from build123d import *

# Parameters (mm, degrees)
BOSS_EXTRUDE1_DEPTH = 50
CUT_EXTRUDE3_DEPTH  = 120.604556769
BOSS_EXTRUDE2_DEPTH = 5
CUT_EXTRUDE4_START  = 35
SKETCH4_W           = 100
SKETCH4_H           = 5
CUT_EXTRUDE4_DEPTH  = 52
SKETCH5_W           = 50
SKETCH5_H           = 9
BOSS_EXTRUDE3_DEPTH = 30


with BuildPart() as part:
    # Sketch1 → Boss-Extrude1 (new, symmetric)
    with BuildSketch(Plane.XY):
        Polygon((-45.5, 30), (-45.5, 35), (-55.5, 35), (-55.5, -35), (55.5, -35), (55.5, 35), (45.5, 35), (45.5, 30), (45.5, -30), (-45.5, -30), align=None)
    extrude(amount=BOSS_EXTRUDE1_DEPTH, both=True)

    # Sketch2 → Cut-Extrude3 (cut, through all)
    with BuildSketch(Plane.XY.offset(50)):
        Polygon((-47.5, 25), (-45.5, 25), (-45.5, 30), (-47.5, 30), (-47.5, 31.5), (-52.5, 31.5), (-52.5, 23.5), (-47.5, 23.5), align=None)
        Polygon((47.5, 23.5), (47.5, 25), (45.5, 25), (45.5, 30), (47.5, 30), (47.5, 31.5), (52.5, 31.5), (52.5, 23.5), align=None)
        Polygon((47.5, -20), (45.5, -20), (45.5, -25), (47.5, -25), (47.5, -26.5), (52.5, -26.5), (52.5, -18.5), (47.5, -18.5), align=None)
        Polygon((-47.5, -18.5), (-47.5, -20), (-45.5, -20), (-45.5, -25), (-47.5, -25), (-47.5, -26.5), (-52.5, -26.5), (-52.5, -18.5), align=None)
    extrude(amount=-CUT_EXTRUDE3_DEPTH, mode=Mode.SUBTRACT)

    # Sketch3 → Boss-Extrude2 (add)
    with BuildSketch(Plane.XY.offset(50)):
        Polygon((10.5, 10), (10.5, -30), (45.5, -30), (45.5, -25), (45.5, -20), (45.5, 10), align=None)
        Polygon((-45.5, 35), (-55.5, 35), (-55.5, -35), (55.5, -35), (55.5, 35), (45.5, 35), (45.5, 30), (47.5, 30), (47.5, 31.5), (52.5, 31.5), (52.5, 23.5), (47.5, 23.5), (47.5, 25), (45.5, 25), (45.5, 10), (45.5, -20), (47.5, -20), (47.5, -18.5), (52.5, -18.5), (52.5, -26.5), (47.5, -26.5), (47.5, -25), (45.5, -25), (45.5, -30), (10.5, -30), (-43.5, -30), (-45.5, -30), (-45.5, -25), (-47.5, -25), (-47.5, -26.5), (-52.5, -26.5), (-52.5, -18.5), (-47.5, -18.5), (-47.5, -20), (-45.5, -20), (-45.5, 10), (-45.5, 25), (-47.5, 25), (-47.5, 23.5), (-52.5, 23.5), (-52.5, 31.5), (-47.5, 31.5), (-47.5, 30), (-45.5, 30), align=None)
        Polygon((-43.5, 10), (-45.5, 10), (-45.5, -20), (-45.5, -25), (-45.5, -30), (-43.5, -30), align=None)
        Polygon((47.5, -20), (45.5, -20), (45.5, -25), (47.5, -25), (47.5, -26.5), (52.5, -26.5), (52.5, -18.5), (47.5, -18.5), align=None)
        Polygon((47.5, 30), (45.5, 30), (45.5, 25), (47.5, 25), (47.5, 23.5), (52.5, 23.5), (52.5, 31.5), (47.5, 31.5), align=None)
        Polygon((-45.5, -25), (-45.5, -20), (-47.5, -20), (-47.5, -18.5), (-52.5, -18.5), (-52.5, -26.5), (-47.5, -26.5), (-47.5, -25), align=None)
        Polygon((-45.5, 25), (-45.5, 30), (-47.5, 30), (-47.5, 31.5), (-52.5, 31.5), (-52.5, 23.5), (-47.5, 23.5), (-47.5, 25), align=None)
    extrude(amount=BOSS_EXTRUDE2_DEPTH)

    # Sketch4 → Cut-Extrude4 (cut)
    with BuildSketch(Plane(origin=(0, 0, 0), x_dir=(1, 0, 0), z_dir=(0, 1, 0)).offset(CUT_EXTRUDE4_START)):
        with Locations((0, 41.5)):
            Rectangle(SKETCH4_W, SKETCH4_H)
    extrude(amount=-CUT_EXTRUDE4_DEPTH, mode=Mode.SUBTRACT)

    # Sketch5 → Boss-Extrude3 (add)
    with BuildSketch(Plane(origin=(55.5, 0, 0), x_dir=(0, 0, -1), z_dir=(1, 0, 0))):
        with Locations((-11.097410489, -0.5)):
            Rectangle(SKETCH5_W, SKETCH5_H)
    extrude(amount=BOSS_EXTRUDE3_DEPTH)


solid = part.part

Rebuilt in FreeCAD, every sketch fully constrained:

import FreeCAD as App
import Part
import Sketcher

V = App.Vector
Q = App.Units.Quantity

doc = App.newDocument("Part")
body = doc.addObject("PartDesign::Body", "Body")

sketch1 = body.newObject("Sketcher::SketchObject", "Sketch")
sketch1.AttachmentSupport = (doc.getObject("XY_Plane"), [""])
sketch1.MapMode = "FlatFace"
sketch1.addGeometry([
    Part.LineSegment(V(-46, 35, 0), V(-56, 35, 0)),
    Part.LineSegment(V(-56, 35, 0), V(-56, -35, 0)),
    Part.LineSegment(V(-56, -35, 0), V(56, -35, 0)),
    Part.LineSegment(V(56, -35, 0), V(56, 35, 0)),
    Part.LineSegment(V(56, 35, 0), V(46, 35, 0)),
    Part.LineSegment(V(46, 35, 0), V(46, -30, 0)),
    Part.LineSegment(V(46, -30, 0), V(-46, -30, 0)),
    Part.LineSegment(V(-46, -30, 0), V(-46, 35, 0)),
], False)
sketch1.addConstraint([
    Sketcher.Constraint("Coincident", 0, 2, 1, 1),
    Sketcher.Constraint("Coincident", 1, 2, 2, 1),
    Sketcher.Constraint("Coincident", 2, 2, 3, 1),
    Sketcher.Constraint("Coincident", 3, 2, 4, 1),
    Sketcher.Constraint("Coincident", 4, 2, 5, 1),
    Sketcher.Constraint("Coincident", 5, 2, 6, 1),
    Sketcher.Constraint("Coincident", 6, 2, 7, 1),
    Sketcher.Constraint("Coincident", 7, 2, 0, 1),
    Sketcher.Constraint("Horizontal", 0),
    Sketcher.Constraint("Vertical", 1),
    Sketcher.Constraint("Horizontal", 2),
    Sketcher.Constraint("Vertical", 3),
    Sketcher.Constraint("Horizontal", 4),
    Sketcher.Constraint("Vertical", 5),
    Sketcher.Constraint("Horizontal", 6),
    Sketcher.Constraint("Vertical", 7),
    Sketcher.Constraint("Symmetric", 0, 2, 2, 2, -1, 1),
    Sketcher.Constraint("Symmetric", 4, 2, 7, 2, -2),
    Sketcher.Constraint("DistanceX", 0, 2, 0, 1, Q("10 mm")),
    Sketcher.Constraint("DistanceX", 2, 1, 2, 2, Q("111 mm")),
    Sketcher.Constraint("DistanceY", 1, 2, 1, 1, Q("70 mm")),
    Sketcher.Constraint("DistanceY", 5, 2, 5, 1, Q("65 mm")),
])
pad1 = body.newObject("PartDesign::Pad", "Pad")
pad1.Profile = sketch1
pad1.Length = 100
pad1.Midplane = True

sketch2 = body.newObject("Sketcher::SketchObject", "Sketch001")
sketch2.AttachmentSupport = (doc.getObject("XY_Plane"), [""])
sketch2.MapMode = "FlatFace"
sketch2.AttachmentOffset = App.Placement(V(0, 0, 50), App.Rotation())
sketch2.addGeometry([
    Part.LineSegment(V(-47.5, 25, 0), V(-45.5, 25, 0)),
    Part.LineSegment(V(-45.5, 25, 0), V(-45.5, 30, 0)),
    Part.LineSegment(V(-45.5, 30, 0), V(-47.5, 30, 0)),
    Part.LineSegment(V(-47.5, 30, 0), V(-47.5, 31.5, 0)),
    Part.LineSegment(V(-47.5, 31.5, 0), V(-52.5, 31.5, 0)),
    Part.LineSegment(V(-52.5, 31.5, 0), V(-52.5, 23.5, 0)),
    Part.LineSegment(V(-52.5, 23.5, 0), V(-47.5, 23.5, 0)),
    Part.LineSegment(V(-47.5, 23.5, 0), V(-47.5, 25, 0)),
    Part.LineSegment(V(47.5, 25, 0), V(47.5, 23.5, 0)),
    Part.LineSegment(V(47.5, 23.5, 0), V(52.5, 23.5, 0)),
    Part.LineSegment(V(52.5, 23.5, 0), V(52.5, 31.5, 0)),
    Part.LineSegment(V(52.5, 31.5, 0), V(47.5, 31.5, 0)),
    Part.LineSegment(V(47.5, 31.5, 0), V(47.5, 30, 0)),
    Part.LineSegment(V(47.5, 30, 0), V(45.5, 30, 0)),
    Part.LineSegment(V(45.5, 30, 0), V(45.5, 25, 0)),
    Part.LineSegment(V(45.5, 25, 0), V(47.5, 25, 0)),
    Part.LineSegment(V(47.5, -20, 0), V(45.5, -20, 0)),
    Part.LineSegment(V(45.5, -20, 0), V(45.5, -25, 0)),
    Part.LineSegment(V(45.5, -25, 0), V(47.5, -25, 0)),
    Part.LineSegment(V(47.5, -25, 0), V(47.5, -26.5, 0)),
    Part.LineSegment(V(47.5, -26.5, 0), V(52.5, -26.5, 0)),
    Part.LineSegment(V(52.5, -26.5, 0), V(52.5, -18.5, 0)),
    Part.LineSegment(V(52.5, -18.5, 0), V(47.5, -18.5, 0)),
    Part.LineSegment(V(47.5, -18.5, 0), V(47.5, -20, 0)),
    Part.LineSegment(V(-47.5, -20, 0), V(-47.5, -18.5, 0)),
    Part.LineSegment(V(-47.5, -18.5, 0), V(-52.5, -18.5, 0)),
    Part.LineSegment(V(-52.5, -18.5, 0), V(-52.5, -26.5, 0)),
    Part.LineSegment(V(-52.5, -26.5, 0), V(-47.5, -26.5, 0)),
    Part.LineSegment(V(-47.5, -26.5, 0), V(-47.5, -25, 0)),
    Part.LineSegment(V(-47.5, -25, 0), V(-45.5, -25, 0)),
    Part.LineSegment(V(-45.5, -25, 0), V(-45.5, -20, 0)),
    Part.LineSegment(V(-45.5, -20, 0), V(-47.5, -20, 0)),
], False)
sketch2.addConstraint([
    Sketcher.Constraint("Coincident", 0, 2, 1, 1),
    Sketcher.Constraint("Coincident", 1, 2, 2, 1),
    Sketcher.Constraint("Coincident", 2, 2, 3, 1),
    Sketcher.Constraint("Coincident", 3, 2, 4, 1),
    Sketcher.Constraint("Coincident", 4, 2, 5, 1),
    Sketcher.Constraint("Coincident", 5, 2, 6, 1),
    Sketcher.Constraint("Coincident", 6, 2, 7, 1),
    Sketcher.Constraint("Coincident", 7, 2, 0, 1),
    Sketcher.Constraint("Coincident", 8, 2, 9, 1),
    Sketcher.Constraint("Coincident", 9, 2, 10, 1),
    Sketcher.Constraint("Coincident", 10, 2, 11, 1),
    Sketcher.Constraint("Coincident", 11, 2, 12, 1),
    Sketcher.Constraint("Coincident", 12, 2, 13, 1),
    Sketcher.Constraint("Coincident", 13, 2, 14, 1),
    Sketcher.Constraint("Coincident", 14, 2, 15, 1),
    Sketcher.Constraint("Coincident", 15, 2, 8, 1),
    Sketcher.Constraint("Coincident", 16, 2, 17, 1),
    Sketcher.Constraint("Coincident", 17, 2, 18, 1),
    Sketcher.Constraint("Coincident", 18, 2, 19, 1),
    Sketcher.Constraint("Coincident", 19, 2, 20, 1),
    Sketcher.Constraint("Coincident", 20, 2, 21, 1),
    Sketcher.Constraint("Coincident", 21, 2, 22, 1),
    Sketcher.Constraint("Coincident", 22, 2, 23, 1),
    Sketcher.Constraint("Coincident", 23, 2, 16, 1),
    Sketcher.Constraint("Coincident", 24, 2, 25, 1),
    Sketcher.Constraint("Coincident", 25, 2, 26, 1),
    Sketcher.Constraint("Coincident", 26, 2, 27, 1),
    Sketcher.Constraint("Coincident", 27, 2, 28, 1),
    Sketcher.Constraint("Coincident", 28, 2, 29, 1),
    Sketcher.Constraint("Coincident", 29, 2, 30, 1),
    Sketcher.Constraint("Coincident", 30, 2, 31, 1),
    Sketcher.Constraint("Coincident", 31, 2, 24, 1),
    Sketcher.Constraint("Horizontal", 0),
    Sketcher.Constraint("Vertical", 1),
    Sketcher.Constraint("Horizontal", 2),
    Sketcher.Constraint("Vertical", 3),
    Sketcher.Constraint("Horizontal", 4),
    Sketcher.Constraint("Vertical", 5),
    Sketcher.Constraint("Horizontal", 6),
    Sketcher.Constraint("Vertical", 7),
    Sketcher.Constraint("Vertical", 8),
    Sketcher.Constraint("Horizontal", 9),
    Sketcher.Constraint("Vertical", 10),
    Sketcher.Constraint("Horizontal", 11),
    Sketcher.Constraint("Vertical", 12),
    Sketcher.Constraint("Horizontal", 13),
    Sketcher.Constraint("Vertical", 14),
    Sketcher.Constraint("Horizontal", 15),
    Sketcher.Constraint("Horizontal", 16),
    Sketcher.Constraint("Vertical", 17),
    Sketcher.Constraint("Horizontal", 18),
    Sketcher.Constraint("Vertical", 19),
    Sketcher.Constraint("Horizontal", 20),
    Sketcher.Constraint("Vertical", 21),
    Sketcher.Constraint("Horizontal", 22),
    Sketcher.Constraint("Vertical", 23),
    Sketcher.Constraint("Vertical", 24),
    Sketcher.Constraint("Horizontal", 25),
    Sketcher.Constraint("Vertical", 26),
    Sketcher.Constraint("Horizontal", 27),
    Sketcher.Constraint("Vertical", 28),
    Sketcher.Constraint("Horizontal", 29),
    Sketcher.Constraint("Vertical", 30),
    Sketcher.Constraint("Horizontal", 31),
    Sketcher.Constraint("Symmetric", 0, 2, 17, 2, -1, 1),
    Sketcher.Constraint("Symmetric", 15, 2, 28, 2, -1, 1),
    Sketcher.Constraint("Symmetric", 6, 2, 8, 2, -2),
    Sketcher.Constraint("Symmetric", 4, 2, 10, 2, -2),
    Sketcher.Constraint("Symmetric", 2, 2, 12, 2, -2),
    Sketcher.Constraint("Symmetric", 0, 2, 14, 2, -2),
    Sketcher.Constraint("Symmetric", 22, 2, 24, 2, -2),
    Sketcher.Constraint("Symmetric", 20, 2, 26, 2, -2),
    Sketcher.Constraint("Symmetric", 16, 2, 30, 2, -2),
    Sketcher.Constraint("Vertical", 3, 2, 6, 2),
    Sketcher.Constraint("Vertical", 15, 2, 18, 2),
    Sketcher.Constraint("Vertical", 10, 2, 20, 2),
    Sketcher.Constraint("Vertical", 19, 2, 22, 2),
    Sketcher.Constraint("Equal", 27, 1),
    Sketcher.Constraint("Equal", 3, 7),
    Sketcher.Constraint("Equal", 14, 17),
    Sketcher.Constraint("Equal", 12, 19),
    Sketcher.Constraint("Equal", 10, 21),
    Sketcher.Constraint("DistanceX", 0, 1, 0, 2, Q("2 mm")),
    Sketcher.Constraint("DistanceX", 4, 2, 4, 1, Q("5 mm")),
    Sketcher.Constraint("DistanceY", 5, 2, 5, 1, Q("8 mm")),
    Sketcher.Constraint("DistanceY", -1, 1, 0, 2, Q("25 mm")),
    Sketcher.Constraint("DistanceX", 0, 2, 8, 2, Q("93 mm")),
])
pocket1 = body.newObject("PartDesign::Pocket", "Pocket")
pocket1.Profile = sketch2
pocket1.Type = "ThroughAll"

sketch3 = body.newObject("Sketcher::SketchObject", "Sketch002")
sketch3.AttachmentSupport = (doc.getObject("XY_Plane"), [""])
sketch3.MapMode = "FlatFace"
sketch3.AttachmentOffset = App.Placement(V(0, 0, 50), App.Rotation())
sketch3.addGeometry([
    Part.LineSegment(V(10.5, 10, 0), V(10.5, -30, 0)),
    Part.LineSegment(V(10.5, -30, 0), V(-43.5, -30, 0)),
    Part.LineSegment(V(-43.5, -30, 0), V(-43.5, 10, 0)),
    Part.LineSegment(V(-43.5, 10, 0), V(-45.5, 10, 0)),
    Part.LineSegment(V(-45.5, 10, 0), V(-45.5, 35, 0)),
    Part.LineSegment(V(-45.5, 35, 0), V(-55.5, 35, 0)),
    Part.LineSegment(V(-55.5, 35, 0), V(-55.5, -35, 0)),
    Part.LineSegment(V(-55.5, -35, 0), V(55.5, -35, 0)),
    Part.LineSegment(V(55.5, -35, 0), V(55.5, 35, 0)),
    Part.LineSegment(V(55.5, 35, 0), V(45.5, 35, 0)),
    Part.LineSegment(V(45.5, 35, 0), V(45.5, 10, 0)),
    Part.LineSegment(V(45.5, 10, 0), V(10.5, 10, 0)),
], False)
sketch3.addConstraint([
    Sketcher.Constraint("Coincident", 0, 2, 1, 1),
    Sketcher.Constraint("Coincident", 1, 2, 2, 1),
    Sketcher.Constraint("Coincident", 2, 2, 3, 1),
    Sketcher.Constraint("Coincident", 3, 2, 4, 1),
    Sketcher.Constraint("Coincident", 4, 2, 5, 1),
    Sketcher.Constraint("Coincident", 5, 2, 6, 1),
    Sketcher.Constraint("Coincident", 6, 2, 7, 1),
    Sketcher.Constraint("Coincident", 7, 2, 8, 1),
    Sketcher.Constraint("Coincident", 8, 2, 9, 1),
    Sketcher.Constraint("Coincident", 9, 2, 10, 1),
    Sketcher.Constraint("Coincident", 10, 2, 11, 1),
    Sketcher.Constraint("Coincident", 11, 2, 0, 1),
    Sketcher.Constraint("Vertical", 0),
    Sketcher.Constraint("Horizontal", 1),
    Sketcher.Constraint("Vertical", 2),
    Sketcher.Constraint("Horizontal", 3),
    Sketcher.Constraint("Vertical", 4),
    Sketcher.Constraint("Horizontal", 5),
    Sketcher.Constraint("Vertical", 6),
    Sketcher.Constraint("Horizontal", 7),
    Sketcher.Constraint("Vertical", 8),
    Sketcher.Constraint("Horizontal", 9),
    Sketcher.Constraint("Vertical", 10),
    Sketcher.Constraint("Horizontal", 11),
    Sketcher.Constraint("Symmetric", 5, 2, 7, 2, -1, 1),
    Sketcher.Constraint("Symmetric", 4, 2, 9, 2, -2),
    Sketcher.Constraint("Horizontal", 3, 2, 10, 2),
    Sketcher.Constraint("DistanceX", 1, 2, 1, 1, Q("54 mm")),
    Sketcher.Constraint("DistanceX", 3, 2, 3, 1, Q("2 mm")),
    Sketcher.Constraint("DistanceX", 5, 2, 5, 1, Q("10 mm")),
    Sketcher.Constraint("DistanceX", 7, 1, 7, 2, Q("111 mm")),
    Sketcher.Constraint("DistanceY", 0, 2, 0, 1, Q("40 mm")),
    Sketcher.Constraint("DistanceY", 4, 1, 4, 2, Q("25 mm")),
    Sketcher.Constraint("DistanceY", 6, 2, 6, 1, Q("70 mm")),
])
pad2 = body.newObject("PartDesign::Pad", "Pad001")
pad2.Profile = sketch3
pad2.Length = 5

sketch4 = body.newObject("Sketcher::SketchObject", "Sketch003")
sketch4.AttachmentSupport = (doc.getObject("XZ_Plane"), [""])
sketch4.MapMode = "FlatFace"
sketch4.AttachmentOffset = App.Placement(V(0, 0, -35), App.Rotation())
sketch4.addGeometry([
    Part.LineSegment(V(-50, -44, 0), V(-50, -39, 0)),
    Part.LineSegment(V(-50, -39, 0), V(50, -39, 0)),
    Part.LineSegment(V(50, -39, 0), V(50, -44, 0)),
    Part.LineSegment(V(50, -44, 0), V(-50, -44, 0)),
], False)
sketch4.addConstraint([
    Sketcher.Constraint("Coincident", 0, 2, 1, 1),
    Sketcher.Constraint("Coincident", 1, 2, 2, 1),
    Sketcher.Constraint("Coincident", 2, 2, 3, 1),
    Sketcher.Constraint("Coincident", 3, 2, 0, 1),
    Sketcher.Constraint("Vertical", 0),
    Sketcher.Constraint("Horizontal", 1),
    Sketcher.Constraint("Vertical", 2),
    Sketcher.Constraint("Horizontal", 3),
    Sketcher.Constraint("DistanceX", 1, 1, 1, 2, Q("100 mm")),
    Sketcher.Constraint("DistanceY", 0, 1, 0, 2, Q("5 mm")),
    Sketcher.Constraint("DistanceX", 0, 2, -1, 1, Q("50 mm")),
    Sketcher.Constraint("DistanceY", 0, 2, -1, 1, Q("39 mm")),
])
pocket2 = body.newObject("PartDesign::Pocket", "Pocket001")
pocket2.Profile = sketch4
pocket2.Length = 52
pocket2.Reversed = True

sketch5 = body.newObject("Sketcher::SketchObject", "Sketch004")
sketch5.AttachmentSupport = (doc.getObject("YZ_Plane"), [""])
sketch5.MapMode = "FlatFace"
sketch5.AttachmentOffset = App.Placement(V(0, 0, 55.5), App.Rotation())
sketch5.addGeometry([
    Part.LineSegment(V(4, 36, 0), V(-5, 36, 0)),
    Part.LineSegment(V(-5, 36, 0), V(-5, -14, 0)),
    Part.LineSegment(V(-5, -14, 0), V(4, -14, 0)),
    Part.LineSegment(V(4, -14, 0), V(4, 36, 0)),
], False)
sketch5.addConstraint([
    Sketcher.Constraint("Coincident", 0, 2, 1, 1),
    Sketcher.Constraint("Coincident", 1, 2, 2, 1),
    Sketcher.Constraint("Coincident", 2, 2, 3, 1),
    Sketcher.Constraint("Coincident", 3, 2, 0, 1),
    Sketcher.Constraint("Horizontal", 0),
    Sketcher.Constraint("Vertical", 1),
    Sketcher.Constraint("Horizontal", 2),
    Sketcher.Constraint("Vertical", 3),
    Sketcher.Constraint("DistanceX", 0, 2, 0, 1, Q("9 mm")),
    Sketcher.Constraint("DistanceY", 1, 2, 1, 1, Q("50 mm")),
    Sketcher.Constraint("DistanceX", 0, 2, -1, 1, Q("5 mm")),
    Sketcher.Constraint("DistanceY", -1, 1, 0, 2, Q("36.09741 mm")),
])
pad3 = body.newObject("PartDesign::Pad", "Pad002")
pad3.Profile = sketch5
pad3.Length = 30

doc.recompute()
